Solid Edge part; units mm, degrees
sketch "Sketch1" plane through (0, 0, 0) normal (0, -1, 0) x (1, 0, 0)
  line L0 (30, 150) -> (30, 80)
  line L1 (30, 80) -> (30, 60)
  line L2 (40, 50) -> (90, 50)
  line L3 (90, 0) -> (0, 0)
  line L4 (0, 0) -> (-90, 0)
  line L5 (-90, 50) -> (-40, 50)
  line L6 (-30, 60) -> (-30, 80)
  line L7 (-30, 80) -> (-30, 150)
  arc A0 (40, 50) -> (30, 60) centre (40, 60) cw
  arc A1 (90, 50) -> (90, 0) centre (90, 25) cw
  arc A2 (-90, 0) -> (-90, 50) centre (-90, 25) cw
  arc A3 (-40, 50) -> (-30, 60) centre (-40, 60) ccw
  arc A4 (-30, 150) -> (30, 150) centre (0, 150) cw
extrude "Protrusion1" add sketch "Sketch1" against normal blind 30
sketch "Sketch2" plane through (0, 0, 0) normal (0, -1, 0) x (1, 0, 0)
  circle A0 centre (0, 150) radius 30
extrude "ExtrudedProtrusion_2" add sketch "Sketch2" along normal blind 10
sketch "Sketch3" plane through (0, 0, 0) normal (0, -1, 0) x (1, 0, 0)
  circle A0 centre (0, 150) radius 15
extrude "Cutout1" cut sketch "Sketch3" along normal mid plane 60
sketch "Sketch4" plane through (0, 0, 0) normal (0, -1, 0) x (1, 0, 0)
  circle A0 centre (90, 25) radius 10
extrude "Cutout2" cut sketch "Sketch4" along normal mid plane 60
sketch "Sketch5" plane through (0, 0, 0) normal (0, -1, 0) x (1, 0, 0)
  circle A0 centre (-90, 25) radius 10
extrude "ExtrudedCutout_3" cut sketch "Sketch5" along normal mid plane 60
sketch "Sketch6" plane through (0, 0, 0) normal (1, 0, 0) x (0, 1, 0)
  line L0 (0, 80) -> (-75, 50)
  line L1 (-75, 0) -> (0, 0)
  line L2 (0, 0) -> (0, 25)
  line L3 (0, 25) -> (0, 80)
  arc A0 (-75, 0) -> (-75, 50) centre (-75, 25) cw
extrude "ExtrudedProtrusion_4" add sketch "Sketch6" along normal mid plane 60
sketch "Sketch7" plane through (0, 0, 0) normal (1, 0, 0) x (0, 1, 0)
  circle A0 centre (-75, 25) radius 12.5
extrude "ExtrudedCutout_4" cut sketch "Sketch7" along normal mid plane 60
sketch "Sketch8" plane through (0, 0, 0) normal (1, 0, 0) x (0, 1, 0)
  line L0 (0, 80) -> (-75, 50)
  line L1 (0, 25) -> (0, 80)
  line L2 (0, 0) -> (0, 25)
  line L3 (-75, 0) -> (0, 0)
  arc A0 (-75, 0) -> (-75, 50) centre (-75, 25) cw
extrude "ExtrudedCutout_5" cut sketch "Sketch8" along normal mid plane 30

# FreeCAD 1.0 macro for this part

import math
import FreeCAD as App
import Part
import Sketcher

V = App.Vector
Q = App.Units.Quantity

doc = App.newDocument("Part")
body = doc.addObject("PartDesign::Body", "Body")

sketch1 = body.newObject("Sketcher::SketchObject", "Sketch")
sketch1.AttachmentSupport = (doc.getObject("XZ_Plane"), [""])
sketch1.MapMode = "FlatFace"
sketch1.addGeometry([
    Part.LineSegment(V(30, 60, 0), V(30, 150, 0)),
    Part.ArcOfCircle(Part.Circle(V(0, 150, 0), V(0, 0, 1), 30), math.radians(0), math.radians(180)),
    Part.LineSegment(V(-30, 150, 0), V(-30, 60, 0)),
    Part.ArcOfCircle(Part.Circle(V(-40, 60, 0), V(0, 0, 1), 10), math.radians(-90), math.radians(0)),
    Part.LineSegment(V(-40, 50, 0), V(-90, 50, 0)),
    Part.ArcOfCircle(Part.Circle(V(-90, 25, 0), V(0, 0, 1), 25), math.radians(90), math.radians(270)),
    Part.LineSegment(V(-90, 0, 0), V(90, 0, 0)),
    Part.ArcOfCircle(Part.Circle(V(90, 25, 0), V(0, 0, 1), 25), math.radians(-90), math.radians(90)),
    Part.LineSegment(V(90, 50, 0), V(40, 50, 0)),
    Part.ArcOfCircle(Part.Circle(V(40, 60, 0), V(0, 0, 1), 10), math.radians(180), math.radians(270)),
], False)
sketch1.addConstraint([
    Sketcher.Constraint("Tangent", 0, 2, 1, 1),
    Sketcher.Constraint("Tangent", 1, 2, 2, 1),
    Sketcher.Constraint("Tangent", 2, 2, 3, 2),
    Sketcher.Constraint("Tangent", 3, 1, 4, 1),
    Sketcher.Constraint("Tangent", 4, 2, 5, 1),
    Sketcher.Constraint("Tangent", 5, 2, 6, 1),
    Sketcher.Constraint("Tangent", 6, 2, 7, 1),
    Sketcher.Constraint("Tangent", 7, 2, 8, 1),
    Sketcher.Constraint("Tangent", 8, 2, 9, 2),
    Sketcher.Constraint("Tangent", 9, 1, 0, 1),
    Sketcher.Constraint("Vertical", 0),
    Sketcher.Constraint("Vertical", 2),
    Sketcher.Constraint("Horizontal", 4),
    Sketcher.Constraint("Horizontal", 6),
    Sketcher.Constraint("Horizontal", 8),
    Sketcher.Constraint("Equal", 5, 7),
    Sketcher.Constraint("Equal", 3, 9),
    Sketcher.Constraint("Symmetric", 5, 2, 6, 2, -1, 1),
    Sketcher.Constraint("PointOnObject", 1, 3, -2),
    Sketcher.Constraint("Radius", 1, Q("30 mm")),
    Sketcher.Constraint("Radius", 3, Q("10 mm")),
    Sketcher.Constraint("Radius", 5, Q("25 mm")),
    Sketcher.Constraint("DistanceX", 4, 2, 4, 1, Q("50 mm")),
    Sketcher.Constraint("DistanceY", 0, 1, 0, 2, Q("90 mm")),
])
pad1 = body.newObject("PartDesign::Pad", "Pad")
pad1.Profile = sketch1
pad1.Length = 30
pad1.Reversed = True

sketch2 = body.newObject("Sketcher::SketchObject", "Sketch001")
sketch2.AttachmentSupport = (doc.getObject("XZ_Plane"), [""])
sketch2.MapMode = "FlatFace"
sketch2.addGeometry(Part.Circle(V(0, 150, 0), V(0, 0, 1), 30), False)
sketch2.addConstraint([
    Sketcher.Constraint("PointOnObject", 0, 3, -2),
    Sketcher.Constraint("Diameter", 0, Q("60 mm")),
    Sketcher.Constraint("DistanceY", -1, 1, 0, 3, Q("150 mm")),
])
pad2 = body.newObject("PartDesign::Pad", "Pad001")
pad2.Profile = sketch2
pad2.Length = 10

sketch3 = body.newObject("Sketcher::SketchObject", "Sketch002")
sketch3.AttachmentSupport = (doc.getObject("XZ_Plane"), [""])
sketch3.MapMode = "FlatFace"
sketch3.addGeometry(Part.Circle(V(0, 150, 0), V(0, 0, 1), 15), False)
sketch3.addConstraint([
    Sketcher.Constraint("PointOnObject", 0, 3, -2),
    Sketcher.Constraint("Diameter", 0, Q("30 mm")),
    Sketcher.Constraint("DistanceY", -1, 1, 0, 3, Q("150 mm")),
])
pocket1 = body.newObject("PartDesign::Pocket", "Pocket")
pocket1.Profile = sketch3
pocket1.Length = 60
pocket1.Midplane = True

sketch4 = body.newObject("Sketcher::SketchObject", "Sketch003")
sketch4.AttachmentSupport = (doc.getObject("XZ_Plane"), [""])
sketch4.MapMode = "FlatFace"
sketch4.addGeometry(Part.Circle(V(90, 25, 0), V(0, 0, 1), 10), False)
sketch4.addConstraint([
    Sketcher.Constraint("Diameter", 0, Q("20 mm")),
    Sketcher.Constraint("DistanceX", -1, 1, 0, 3, Q("90 mm")),
    Sketcher.Constraint("DistanceY", -1, 1, 0, 3, Q("25 mm")),
])
pocket2 = body.newObject("PartDesign::Pocket", "Pocket001")
pocket2.Profile = sketch4
pocket2.Length = 60
pocket2.Midplane = True

sketch5 = body.newObject("Sketcher::SketchObject", "Sketch004")
sketch5.AttachmentSupport = (doc.getObject("XZ_Plane"), [""])
sketch5.MapMode = "FlatFace"
sketch5.addGeometry(Part.Circle(V(-90, 25, 0), V(0, 0, 1), 10), False)
sketch5.addConstraint([
    Sketcher.Constraint("Diameter", 0, Q("20 mm")),
    Sketcher.Constraint("DistanceX", 0, 3, -1, 1, Q("90 mm")),
    Sketcher.Constraint("DistanceY", -1, 1, 0, 3, Q("25 mm")),
])
pocket3 = body.newObject("PartDesign::Pocket", "Pocket002")
pocket3.Profile = sketch5
pocket3.Length = 60
pocket3.Midplane = True

sketch6 = body.newObject("Sketcher::SketchObject", "Sketch005")
sketch6.AttachmentSupport = (doc.getObject("YZ_Plane"), [""])
sketch6.MapMode = "FlatFace"
sketch6.addGeometry([
    Part.LineSegment(V(0, 0, 0), V(0, 80, 0)),
    Part.LineSegment(V(0, 80, 0), V(-75, 50, 0)),
    Part.ArcOfCircle(Part.Circle(V(-75, 25, 0), V(0, 0, 1), 25), math.radians(90), math.radians(270)),
    Part.LineSegment(V(-75, 0, 0), V(0, 0, 0)),
], False)
sketch6.addConstraint([
    Sketcher.Constraint("Coincident", 0, 2, 1, 1),
    Sketcher.Constraint("Coincident", 1, 2, 2, 1),
    Sketcher.Constraint("Tangent", 2, 2, 3, 1),
    Sketcher.Constraint("Coincident", 3, 2, 0, 1),
    Sketcher.Constraint("Vertical", 0),
    Sketcher.Constraint("Horizontal", 3),
    Sketcher.Constraint("Coincident", 3, 2, -1, 1),
    Sketcher.Constraint("Vertical", 2, 3, 1, 2),
    Sketcher.Constraint("Radius", 2, Q("25 mm")),
    Sketcher.Constraint("DistanceX", 3, 1, 3, 2, Q("75 mm")),
    Sketcher.Constraint("DistanceY", 0, 1, 0, 2, Q("80 mm")),
])
pad3 = body.newObject("PartDesign::Pad", "Pad002")
pad3.Profile = sketch6
pad3.Length = 60
pad3.Midplane = True

sketch7 = body.newObject("Sketcher::SketchObject", "Sketch006")
sketch7.AttachmentSupport = (doc.getObject("YZ_Plane"), [""])
sketch7.MapMode = "FlatFace"
sketch7.addGeometry(Part.Circle(V(-75, 25, 0), V(0, 0, 1), 12), False)
sketch7.addConstraint([
    Sketcher.Constraint("Diameter", 0, Q("25 mm")),
    Sketcher.Constraint("DistanceX", 0, 3, -1, 1, Q("75 mm")),
    Sketcher.Constraint("DistanceY", -1, 1, 0, 3, Q("25 mm")),
])
pocket4 = body.newObject("PartDesign::Pocket", "Pocket003")
pocket4.Profile = sketch7
pocket4.Length = 60
pocket4.Midplane = True

sketch8 = body.newObject("Sketcher::SketchObject", "Sketch007")
sketch8.AttachmentSupport = (doc.getObject("YZ_Plane"), [""])
sketch8.MapMode = "FlatFace"
sketch8.addGeometry([
    Part.LineSegment(V(0, 0, 0), V(0, 80, 0)),
    Part.LineSegment(V(0, 80, 0), V(-75, 50, 0)),
    Part.ArcOfCircle(Part.Circle(V(-75, 25, 0), V(0, 0, 1), 25), math.radians(90), math.radians(270)),
    Part.LineSegment(V(-75, 0, 0), V(0, 0, 0)),
], False)
sketch8.addConstraint([
    Sketcher.Constraint("Coincident", 0, 2, 1, 1),
    Sketcher.Constraint("Coincident", 1, 2, 2, 1),
    Sketcher.Constraint("Tangent", 2, 2, 3, 1),
    Sketcher.Constraint("Coincident", 3, 2, 0, 1),
    Sketcher.Constraint("Vertical", 0),
    Sketcher.Constraint("Horizontal", 3),
    Sketcher.Constraint("Coincident", 3, 2, -1, 1),
    Sketcher.Constraint("Vertical", 2, 3, 1, 2),
    Sketcher.Constraint("Radius", 2, Q("25 mm")),
    Sketcher.Constraint("DistanceX", 3, 1, 3, 2, Q("75 mm")),
    Sketcher.Constraint("DistanceY", 0, 1, 0, 2, Q("80 mm")),
])
pocket5 = body.newObject("PartDesign::Pocket", "Pocket004")
pocket5.Profile = sketch8
pocket5.Length = 30
pocket5.Midplane = True

doc.recompute()
